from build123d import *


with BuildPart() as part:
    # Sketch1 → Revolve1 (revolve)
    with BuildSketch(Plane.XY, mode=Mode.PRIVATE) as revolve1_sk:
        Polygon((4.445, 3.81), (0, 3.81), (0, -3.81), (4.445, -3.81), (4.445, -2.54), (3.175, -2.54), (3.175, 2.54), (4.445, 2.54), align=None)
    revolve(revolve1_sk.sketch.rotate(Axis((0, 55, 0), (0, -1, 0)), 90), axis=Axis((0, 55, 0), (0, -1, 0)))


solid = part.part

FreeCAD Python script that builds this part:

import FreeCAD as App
import Part
import Sketcher
Q = App.Units.Quantity

doc = App.newDocument("Part")
params = doc.addObject("Spreadsheet::Sheet", "Params")
for row, (alias, value) in enumerate([
    ("sketch1_height", "0.3 in"),
    ("sketch1_height2", "0.2 in"),
    ("sketch1_width", "0.175 in"),
    ("revolution_angle", "360 deg"),
], start=1):
    params.set(f"A{row}", alias)
    params.set(f"B{row}", "=" + value)
    params.setAlias(f"B{row}", alias)

body = doc.addObject("PartDesign::Body", "Body")

sketch1 = body.newObject("Sketcher::SketchObject", "Sketch")
sketch1.AttachmentSupport = (doc.getObject("XY_Plane"), [""])
sketch1.MapMode = "FlatFace"
sketch1.addGeometry([
    Part.LineSegment(App.Vector(4.445, 3.81, 0), App.Vector(0, 3.81, 0)),
    Part.LineSegment(App.Vector(0, 3.81, 0), App.Vector(0, -3.81, 0)),
    Part.LineSegment(App.Vector(0, -3.81, 0), App.Vector(4.445, -3.81, 0)),
    Part.LineSegment(App.Vector(4.445, -3.81, 0), App.Vector(4.445, -2.54, 0)),
    Part.LineSegment(App.Vector(4.445, -2.54, 0), App.Vector(3.175, -2.54, 0)),
    Part.LineSegment(App.Vector(3.175, -2.54, 0), App.Vector(3.175, 2.54, 0)),
    Part.LineSegment(App.Vector(3.175, 2.54, 0), App.Vector(4.445, 2.54, 0)),
    Part.LineSegment(App.Vector(4.445, 2.54, 0), App.Vector(4.445, 3.81, 0)),
], False)
sketch1.addConstraint([
    Sketcher.Constraint("Coincident", 0, 2, 1, 1),
    Sketcher.Constraint("Coincident", 1, 2, 2, 1),
    Sketcher.Constraint("Coincident", 2, 2, 3, 1),
    Sketcher.Constraint("Coincident", 3, 2, 4, 1),
    Sketcher.Constraint("Coincident", 4, 2, 5, 1),
    Sketcher.Constraint("Coincident", 5, 2, 6, 1),
    Sketcher.Constraint("Coincident", 6, 2, 7, 1),
    Sketcher.Constraint("Coincident", 7, 2, 0, 1),
    Sketcher.Constraint("Horizontal", 0),
    Sketcher.Constraint("Vertical", 1),
    Sketcher.Constraint("Horizontal", 2),
    Sketcher.Constraint("Vertical", 3),
    Sketcher.Constraint("Horizontal", 4),
    Sketcher.Constraint("Vertical", 5),
    Sketcher.Constraint("Horizontal", 6),
    Sketcher.Constraint("Vertical", 7),
    Sketcher.Constraint("Symmetric", 0, 2, 1, 2, -1, 1),
    Sketcher.Constraint("Symmetric", 3, 2, 6, 2, -1),
    Sketcher.Constraint("Equal", 6, 3),
    Sketcher.Constraint("DistanceY", 1, 2, 1, 1, Q("0.3 in")),
    Sketcher.Constraint("DistanceY", 5, 1, 5, 2, Q("0.2 in")),
    Sketcher.Constraint("DistanceX", 0, 2, 0, 1, Q("0.175 in")),
])
sketch1.setExpression("Constraints[19]", "Params.sketch1_height")
sketch1.setExpression("Constraints[20]", "Params.sketch1_height2")
sketch1.setExpression("Constraints[21]", "Params.sketch1_width")
revolution = body.newObject("PartDesign::Revolution", "Revolution")
revolution.Profile = sketch1
revolution.ReferenceAxis = (sketch1, ["V_Axis"])
revolution.setExpression("Angle", "Params.revolution_angle")

doc.recompute()
